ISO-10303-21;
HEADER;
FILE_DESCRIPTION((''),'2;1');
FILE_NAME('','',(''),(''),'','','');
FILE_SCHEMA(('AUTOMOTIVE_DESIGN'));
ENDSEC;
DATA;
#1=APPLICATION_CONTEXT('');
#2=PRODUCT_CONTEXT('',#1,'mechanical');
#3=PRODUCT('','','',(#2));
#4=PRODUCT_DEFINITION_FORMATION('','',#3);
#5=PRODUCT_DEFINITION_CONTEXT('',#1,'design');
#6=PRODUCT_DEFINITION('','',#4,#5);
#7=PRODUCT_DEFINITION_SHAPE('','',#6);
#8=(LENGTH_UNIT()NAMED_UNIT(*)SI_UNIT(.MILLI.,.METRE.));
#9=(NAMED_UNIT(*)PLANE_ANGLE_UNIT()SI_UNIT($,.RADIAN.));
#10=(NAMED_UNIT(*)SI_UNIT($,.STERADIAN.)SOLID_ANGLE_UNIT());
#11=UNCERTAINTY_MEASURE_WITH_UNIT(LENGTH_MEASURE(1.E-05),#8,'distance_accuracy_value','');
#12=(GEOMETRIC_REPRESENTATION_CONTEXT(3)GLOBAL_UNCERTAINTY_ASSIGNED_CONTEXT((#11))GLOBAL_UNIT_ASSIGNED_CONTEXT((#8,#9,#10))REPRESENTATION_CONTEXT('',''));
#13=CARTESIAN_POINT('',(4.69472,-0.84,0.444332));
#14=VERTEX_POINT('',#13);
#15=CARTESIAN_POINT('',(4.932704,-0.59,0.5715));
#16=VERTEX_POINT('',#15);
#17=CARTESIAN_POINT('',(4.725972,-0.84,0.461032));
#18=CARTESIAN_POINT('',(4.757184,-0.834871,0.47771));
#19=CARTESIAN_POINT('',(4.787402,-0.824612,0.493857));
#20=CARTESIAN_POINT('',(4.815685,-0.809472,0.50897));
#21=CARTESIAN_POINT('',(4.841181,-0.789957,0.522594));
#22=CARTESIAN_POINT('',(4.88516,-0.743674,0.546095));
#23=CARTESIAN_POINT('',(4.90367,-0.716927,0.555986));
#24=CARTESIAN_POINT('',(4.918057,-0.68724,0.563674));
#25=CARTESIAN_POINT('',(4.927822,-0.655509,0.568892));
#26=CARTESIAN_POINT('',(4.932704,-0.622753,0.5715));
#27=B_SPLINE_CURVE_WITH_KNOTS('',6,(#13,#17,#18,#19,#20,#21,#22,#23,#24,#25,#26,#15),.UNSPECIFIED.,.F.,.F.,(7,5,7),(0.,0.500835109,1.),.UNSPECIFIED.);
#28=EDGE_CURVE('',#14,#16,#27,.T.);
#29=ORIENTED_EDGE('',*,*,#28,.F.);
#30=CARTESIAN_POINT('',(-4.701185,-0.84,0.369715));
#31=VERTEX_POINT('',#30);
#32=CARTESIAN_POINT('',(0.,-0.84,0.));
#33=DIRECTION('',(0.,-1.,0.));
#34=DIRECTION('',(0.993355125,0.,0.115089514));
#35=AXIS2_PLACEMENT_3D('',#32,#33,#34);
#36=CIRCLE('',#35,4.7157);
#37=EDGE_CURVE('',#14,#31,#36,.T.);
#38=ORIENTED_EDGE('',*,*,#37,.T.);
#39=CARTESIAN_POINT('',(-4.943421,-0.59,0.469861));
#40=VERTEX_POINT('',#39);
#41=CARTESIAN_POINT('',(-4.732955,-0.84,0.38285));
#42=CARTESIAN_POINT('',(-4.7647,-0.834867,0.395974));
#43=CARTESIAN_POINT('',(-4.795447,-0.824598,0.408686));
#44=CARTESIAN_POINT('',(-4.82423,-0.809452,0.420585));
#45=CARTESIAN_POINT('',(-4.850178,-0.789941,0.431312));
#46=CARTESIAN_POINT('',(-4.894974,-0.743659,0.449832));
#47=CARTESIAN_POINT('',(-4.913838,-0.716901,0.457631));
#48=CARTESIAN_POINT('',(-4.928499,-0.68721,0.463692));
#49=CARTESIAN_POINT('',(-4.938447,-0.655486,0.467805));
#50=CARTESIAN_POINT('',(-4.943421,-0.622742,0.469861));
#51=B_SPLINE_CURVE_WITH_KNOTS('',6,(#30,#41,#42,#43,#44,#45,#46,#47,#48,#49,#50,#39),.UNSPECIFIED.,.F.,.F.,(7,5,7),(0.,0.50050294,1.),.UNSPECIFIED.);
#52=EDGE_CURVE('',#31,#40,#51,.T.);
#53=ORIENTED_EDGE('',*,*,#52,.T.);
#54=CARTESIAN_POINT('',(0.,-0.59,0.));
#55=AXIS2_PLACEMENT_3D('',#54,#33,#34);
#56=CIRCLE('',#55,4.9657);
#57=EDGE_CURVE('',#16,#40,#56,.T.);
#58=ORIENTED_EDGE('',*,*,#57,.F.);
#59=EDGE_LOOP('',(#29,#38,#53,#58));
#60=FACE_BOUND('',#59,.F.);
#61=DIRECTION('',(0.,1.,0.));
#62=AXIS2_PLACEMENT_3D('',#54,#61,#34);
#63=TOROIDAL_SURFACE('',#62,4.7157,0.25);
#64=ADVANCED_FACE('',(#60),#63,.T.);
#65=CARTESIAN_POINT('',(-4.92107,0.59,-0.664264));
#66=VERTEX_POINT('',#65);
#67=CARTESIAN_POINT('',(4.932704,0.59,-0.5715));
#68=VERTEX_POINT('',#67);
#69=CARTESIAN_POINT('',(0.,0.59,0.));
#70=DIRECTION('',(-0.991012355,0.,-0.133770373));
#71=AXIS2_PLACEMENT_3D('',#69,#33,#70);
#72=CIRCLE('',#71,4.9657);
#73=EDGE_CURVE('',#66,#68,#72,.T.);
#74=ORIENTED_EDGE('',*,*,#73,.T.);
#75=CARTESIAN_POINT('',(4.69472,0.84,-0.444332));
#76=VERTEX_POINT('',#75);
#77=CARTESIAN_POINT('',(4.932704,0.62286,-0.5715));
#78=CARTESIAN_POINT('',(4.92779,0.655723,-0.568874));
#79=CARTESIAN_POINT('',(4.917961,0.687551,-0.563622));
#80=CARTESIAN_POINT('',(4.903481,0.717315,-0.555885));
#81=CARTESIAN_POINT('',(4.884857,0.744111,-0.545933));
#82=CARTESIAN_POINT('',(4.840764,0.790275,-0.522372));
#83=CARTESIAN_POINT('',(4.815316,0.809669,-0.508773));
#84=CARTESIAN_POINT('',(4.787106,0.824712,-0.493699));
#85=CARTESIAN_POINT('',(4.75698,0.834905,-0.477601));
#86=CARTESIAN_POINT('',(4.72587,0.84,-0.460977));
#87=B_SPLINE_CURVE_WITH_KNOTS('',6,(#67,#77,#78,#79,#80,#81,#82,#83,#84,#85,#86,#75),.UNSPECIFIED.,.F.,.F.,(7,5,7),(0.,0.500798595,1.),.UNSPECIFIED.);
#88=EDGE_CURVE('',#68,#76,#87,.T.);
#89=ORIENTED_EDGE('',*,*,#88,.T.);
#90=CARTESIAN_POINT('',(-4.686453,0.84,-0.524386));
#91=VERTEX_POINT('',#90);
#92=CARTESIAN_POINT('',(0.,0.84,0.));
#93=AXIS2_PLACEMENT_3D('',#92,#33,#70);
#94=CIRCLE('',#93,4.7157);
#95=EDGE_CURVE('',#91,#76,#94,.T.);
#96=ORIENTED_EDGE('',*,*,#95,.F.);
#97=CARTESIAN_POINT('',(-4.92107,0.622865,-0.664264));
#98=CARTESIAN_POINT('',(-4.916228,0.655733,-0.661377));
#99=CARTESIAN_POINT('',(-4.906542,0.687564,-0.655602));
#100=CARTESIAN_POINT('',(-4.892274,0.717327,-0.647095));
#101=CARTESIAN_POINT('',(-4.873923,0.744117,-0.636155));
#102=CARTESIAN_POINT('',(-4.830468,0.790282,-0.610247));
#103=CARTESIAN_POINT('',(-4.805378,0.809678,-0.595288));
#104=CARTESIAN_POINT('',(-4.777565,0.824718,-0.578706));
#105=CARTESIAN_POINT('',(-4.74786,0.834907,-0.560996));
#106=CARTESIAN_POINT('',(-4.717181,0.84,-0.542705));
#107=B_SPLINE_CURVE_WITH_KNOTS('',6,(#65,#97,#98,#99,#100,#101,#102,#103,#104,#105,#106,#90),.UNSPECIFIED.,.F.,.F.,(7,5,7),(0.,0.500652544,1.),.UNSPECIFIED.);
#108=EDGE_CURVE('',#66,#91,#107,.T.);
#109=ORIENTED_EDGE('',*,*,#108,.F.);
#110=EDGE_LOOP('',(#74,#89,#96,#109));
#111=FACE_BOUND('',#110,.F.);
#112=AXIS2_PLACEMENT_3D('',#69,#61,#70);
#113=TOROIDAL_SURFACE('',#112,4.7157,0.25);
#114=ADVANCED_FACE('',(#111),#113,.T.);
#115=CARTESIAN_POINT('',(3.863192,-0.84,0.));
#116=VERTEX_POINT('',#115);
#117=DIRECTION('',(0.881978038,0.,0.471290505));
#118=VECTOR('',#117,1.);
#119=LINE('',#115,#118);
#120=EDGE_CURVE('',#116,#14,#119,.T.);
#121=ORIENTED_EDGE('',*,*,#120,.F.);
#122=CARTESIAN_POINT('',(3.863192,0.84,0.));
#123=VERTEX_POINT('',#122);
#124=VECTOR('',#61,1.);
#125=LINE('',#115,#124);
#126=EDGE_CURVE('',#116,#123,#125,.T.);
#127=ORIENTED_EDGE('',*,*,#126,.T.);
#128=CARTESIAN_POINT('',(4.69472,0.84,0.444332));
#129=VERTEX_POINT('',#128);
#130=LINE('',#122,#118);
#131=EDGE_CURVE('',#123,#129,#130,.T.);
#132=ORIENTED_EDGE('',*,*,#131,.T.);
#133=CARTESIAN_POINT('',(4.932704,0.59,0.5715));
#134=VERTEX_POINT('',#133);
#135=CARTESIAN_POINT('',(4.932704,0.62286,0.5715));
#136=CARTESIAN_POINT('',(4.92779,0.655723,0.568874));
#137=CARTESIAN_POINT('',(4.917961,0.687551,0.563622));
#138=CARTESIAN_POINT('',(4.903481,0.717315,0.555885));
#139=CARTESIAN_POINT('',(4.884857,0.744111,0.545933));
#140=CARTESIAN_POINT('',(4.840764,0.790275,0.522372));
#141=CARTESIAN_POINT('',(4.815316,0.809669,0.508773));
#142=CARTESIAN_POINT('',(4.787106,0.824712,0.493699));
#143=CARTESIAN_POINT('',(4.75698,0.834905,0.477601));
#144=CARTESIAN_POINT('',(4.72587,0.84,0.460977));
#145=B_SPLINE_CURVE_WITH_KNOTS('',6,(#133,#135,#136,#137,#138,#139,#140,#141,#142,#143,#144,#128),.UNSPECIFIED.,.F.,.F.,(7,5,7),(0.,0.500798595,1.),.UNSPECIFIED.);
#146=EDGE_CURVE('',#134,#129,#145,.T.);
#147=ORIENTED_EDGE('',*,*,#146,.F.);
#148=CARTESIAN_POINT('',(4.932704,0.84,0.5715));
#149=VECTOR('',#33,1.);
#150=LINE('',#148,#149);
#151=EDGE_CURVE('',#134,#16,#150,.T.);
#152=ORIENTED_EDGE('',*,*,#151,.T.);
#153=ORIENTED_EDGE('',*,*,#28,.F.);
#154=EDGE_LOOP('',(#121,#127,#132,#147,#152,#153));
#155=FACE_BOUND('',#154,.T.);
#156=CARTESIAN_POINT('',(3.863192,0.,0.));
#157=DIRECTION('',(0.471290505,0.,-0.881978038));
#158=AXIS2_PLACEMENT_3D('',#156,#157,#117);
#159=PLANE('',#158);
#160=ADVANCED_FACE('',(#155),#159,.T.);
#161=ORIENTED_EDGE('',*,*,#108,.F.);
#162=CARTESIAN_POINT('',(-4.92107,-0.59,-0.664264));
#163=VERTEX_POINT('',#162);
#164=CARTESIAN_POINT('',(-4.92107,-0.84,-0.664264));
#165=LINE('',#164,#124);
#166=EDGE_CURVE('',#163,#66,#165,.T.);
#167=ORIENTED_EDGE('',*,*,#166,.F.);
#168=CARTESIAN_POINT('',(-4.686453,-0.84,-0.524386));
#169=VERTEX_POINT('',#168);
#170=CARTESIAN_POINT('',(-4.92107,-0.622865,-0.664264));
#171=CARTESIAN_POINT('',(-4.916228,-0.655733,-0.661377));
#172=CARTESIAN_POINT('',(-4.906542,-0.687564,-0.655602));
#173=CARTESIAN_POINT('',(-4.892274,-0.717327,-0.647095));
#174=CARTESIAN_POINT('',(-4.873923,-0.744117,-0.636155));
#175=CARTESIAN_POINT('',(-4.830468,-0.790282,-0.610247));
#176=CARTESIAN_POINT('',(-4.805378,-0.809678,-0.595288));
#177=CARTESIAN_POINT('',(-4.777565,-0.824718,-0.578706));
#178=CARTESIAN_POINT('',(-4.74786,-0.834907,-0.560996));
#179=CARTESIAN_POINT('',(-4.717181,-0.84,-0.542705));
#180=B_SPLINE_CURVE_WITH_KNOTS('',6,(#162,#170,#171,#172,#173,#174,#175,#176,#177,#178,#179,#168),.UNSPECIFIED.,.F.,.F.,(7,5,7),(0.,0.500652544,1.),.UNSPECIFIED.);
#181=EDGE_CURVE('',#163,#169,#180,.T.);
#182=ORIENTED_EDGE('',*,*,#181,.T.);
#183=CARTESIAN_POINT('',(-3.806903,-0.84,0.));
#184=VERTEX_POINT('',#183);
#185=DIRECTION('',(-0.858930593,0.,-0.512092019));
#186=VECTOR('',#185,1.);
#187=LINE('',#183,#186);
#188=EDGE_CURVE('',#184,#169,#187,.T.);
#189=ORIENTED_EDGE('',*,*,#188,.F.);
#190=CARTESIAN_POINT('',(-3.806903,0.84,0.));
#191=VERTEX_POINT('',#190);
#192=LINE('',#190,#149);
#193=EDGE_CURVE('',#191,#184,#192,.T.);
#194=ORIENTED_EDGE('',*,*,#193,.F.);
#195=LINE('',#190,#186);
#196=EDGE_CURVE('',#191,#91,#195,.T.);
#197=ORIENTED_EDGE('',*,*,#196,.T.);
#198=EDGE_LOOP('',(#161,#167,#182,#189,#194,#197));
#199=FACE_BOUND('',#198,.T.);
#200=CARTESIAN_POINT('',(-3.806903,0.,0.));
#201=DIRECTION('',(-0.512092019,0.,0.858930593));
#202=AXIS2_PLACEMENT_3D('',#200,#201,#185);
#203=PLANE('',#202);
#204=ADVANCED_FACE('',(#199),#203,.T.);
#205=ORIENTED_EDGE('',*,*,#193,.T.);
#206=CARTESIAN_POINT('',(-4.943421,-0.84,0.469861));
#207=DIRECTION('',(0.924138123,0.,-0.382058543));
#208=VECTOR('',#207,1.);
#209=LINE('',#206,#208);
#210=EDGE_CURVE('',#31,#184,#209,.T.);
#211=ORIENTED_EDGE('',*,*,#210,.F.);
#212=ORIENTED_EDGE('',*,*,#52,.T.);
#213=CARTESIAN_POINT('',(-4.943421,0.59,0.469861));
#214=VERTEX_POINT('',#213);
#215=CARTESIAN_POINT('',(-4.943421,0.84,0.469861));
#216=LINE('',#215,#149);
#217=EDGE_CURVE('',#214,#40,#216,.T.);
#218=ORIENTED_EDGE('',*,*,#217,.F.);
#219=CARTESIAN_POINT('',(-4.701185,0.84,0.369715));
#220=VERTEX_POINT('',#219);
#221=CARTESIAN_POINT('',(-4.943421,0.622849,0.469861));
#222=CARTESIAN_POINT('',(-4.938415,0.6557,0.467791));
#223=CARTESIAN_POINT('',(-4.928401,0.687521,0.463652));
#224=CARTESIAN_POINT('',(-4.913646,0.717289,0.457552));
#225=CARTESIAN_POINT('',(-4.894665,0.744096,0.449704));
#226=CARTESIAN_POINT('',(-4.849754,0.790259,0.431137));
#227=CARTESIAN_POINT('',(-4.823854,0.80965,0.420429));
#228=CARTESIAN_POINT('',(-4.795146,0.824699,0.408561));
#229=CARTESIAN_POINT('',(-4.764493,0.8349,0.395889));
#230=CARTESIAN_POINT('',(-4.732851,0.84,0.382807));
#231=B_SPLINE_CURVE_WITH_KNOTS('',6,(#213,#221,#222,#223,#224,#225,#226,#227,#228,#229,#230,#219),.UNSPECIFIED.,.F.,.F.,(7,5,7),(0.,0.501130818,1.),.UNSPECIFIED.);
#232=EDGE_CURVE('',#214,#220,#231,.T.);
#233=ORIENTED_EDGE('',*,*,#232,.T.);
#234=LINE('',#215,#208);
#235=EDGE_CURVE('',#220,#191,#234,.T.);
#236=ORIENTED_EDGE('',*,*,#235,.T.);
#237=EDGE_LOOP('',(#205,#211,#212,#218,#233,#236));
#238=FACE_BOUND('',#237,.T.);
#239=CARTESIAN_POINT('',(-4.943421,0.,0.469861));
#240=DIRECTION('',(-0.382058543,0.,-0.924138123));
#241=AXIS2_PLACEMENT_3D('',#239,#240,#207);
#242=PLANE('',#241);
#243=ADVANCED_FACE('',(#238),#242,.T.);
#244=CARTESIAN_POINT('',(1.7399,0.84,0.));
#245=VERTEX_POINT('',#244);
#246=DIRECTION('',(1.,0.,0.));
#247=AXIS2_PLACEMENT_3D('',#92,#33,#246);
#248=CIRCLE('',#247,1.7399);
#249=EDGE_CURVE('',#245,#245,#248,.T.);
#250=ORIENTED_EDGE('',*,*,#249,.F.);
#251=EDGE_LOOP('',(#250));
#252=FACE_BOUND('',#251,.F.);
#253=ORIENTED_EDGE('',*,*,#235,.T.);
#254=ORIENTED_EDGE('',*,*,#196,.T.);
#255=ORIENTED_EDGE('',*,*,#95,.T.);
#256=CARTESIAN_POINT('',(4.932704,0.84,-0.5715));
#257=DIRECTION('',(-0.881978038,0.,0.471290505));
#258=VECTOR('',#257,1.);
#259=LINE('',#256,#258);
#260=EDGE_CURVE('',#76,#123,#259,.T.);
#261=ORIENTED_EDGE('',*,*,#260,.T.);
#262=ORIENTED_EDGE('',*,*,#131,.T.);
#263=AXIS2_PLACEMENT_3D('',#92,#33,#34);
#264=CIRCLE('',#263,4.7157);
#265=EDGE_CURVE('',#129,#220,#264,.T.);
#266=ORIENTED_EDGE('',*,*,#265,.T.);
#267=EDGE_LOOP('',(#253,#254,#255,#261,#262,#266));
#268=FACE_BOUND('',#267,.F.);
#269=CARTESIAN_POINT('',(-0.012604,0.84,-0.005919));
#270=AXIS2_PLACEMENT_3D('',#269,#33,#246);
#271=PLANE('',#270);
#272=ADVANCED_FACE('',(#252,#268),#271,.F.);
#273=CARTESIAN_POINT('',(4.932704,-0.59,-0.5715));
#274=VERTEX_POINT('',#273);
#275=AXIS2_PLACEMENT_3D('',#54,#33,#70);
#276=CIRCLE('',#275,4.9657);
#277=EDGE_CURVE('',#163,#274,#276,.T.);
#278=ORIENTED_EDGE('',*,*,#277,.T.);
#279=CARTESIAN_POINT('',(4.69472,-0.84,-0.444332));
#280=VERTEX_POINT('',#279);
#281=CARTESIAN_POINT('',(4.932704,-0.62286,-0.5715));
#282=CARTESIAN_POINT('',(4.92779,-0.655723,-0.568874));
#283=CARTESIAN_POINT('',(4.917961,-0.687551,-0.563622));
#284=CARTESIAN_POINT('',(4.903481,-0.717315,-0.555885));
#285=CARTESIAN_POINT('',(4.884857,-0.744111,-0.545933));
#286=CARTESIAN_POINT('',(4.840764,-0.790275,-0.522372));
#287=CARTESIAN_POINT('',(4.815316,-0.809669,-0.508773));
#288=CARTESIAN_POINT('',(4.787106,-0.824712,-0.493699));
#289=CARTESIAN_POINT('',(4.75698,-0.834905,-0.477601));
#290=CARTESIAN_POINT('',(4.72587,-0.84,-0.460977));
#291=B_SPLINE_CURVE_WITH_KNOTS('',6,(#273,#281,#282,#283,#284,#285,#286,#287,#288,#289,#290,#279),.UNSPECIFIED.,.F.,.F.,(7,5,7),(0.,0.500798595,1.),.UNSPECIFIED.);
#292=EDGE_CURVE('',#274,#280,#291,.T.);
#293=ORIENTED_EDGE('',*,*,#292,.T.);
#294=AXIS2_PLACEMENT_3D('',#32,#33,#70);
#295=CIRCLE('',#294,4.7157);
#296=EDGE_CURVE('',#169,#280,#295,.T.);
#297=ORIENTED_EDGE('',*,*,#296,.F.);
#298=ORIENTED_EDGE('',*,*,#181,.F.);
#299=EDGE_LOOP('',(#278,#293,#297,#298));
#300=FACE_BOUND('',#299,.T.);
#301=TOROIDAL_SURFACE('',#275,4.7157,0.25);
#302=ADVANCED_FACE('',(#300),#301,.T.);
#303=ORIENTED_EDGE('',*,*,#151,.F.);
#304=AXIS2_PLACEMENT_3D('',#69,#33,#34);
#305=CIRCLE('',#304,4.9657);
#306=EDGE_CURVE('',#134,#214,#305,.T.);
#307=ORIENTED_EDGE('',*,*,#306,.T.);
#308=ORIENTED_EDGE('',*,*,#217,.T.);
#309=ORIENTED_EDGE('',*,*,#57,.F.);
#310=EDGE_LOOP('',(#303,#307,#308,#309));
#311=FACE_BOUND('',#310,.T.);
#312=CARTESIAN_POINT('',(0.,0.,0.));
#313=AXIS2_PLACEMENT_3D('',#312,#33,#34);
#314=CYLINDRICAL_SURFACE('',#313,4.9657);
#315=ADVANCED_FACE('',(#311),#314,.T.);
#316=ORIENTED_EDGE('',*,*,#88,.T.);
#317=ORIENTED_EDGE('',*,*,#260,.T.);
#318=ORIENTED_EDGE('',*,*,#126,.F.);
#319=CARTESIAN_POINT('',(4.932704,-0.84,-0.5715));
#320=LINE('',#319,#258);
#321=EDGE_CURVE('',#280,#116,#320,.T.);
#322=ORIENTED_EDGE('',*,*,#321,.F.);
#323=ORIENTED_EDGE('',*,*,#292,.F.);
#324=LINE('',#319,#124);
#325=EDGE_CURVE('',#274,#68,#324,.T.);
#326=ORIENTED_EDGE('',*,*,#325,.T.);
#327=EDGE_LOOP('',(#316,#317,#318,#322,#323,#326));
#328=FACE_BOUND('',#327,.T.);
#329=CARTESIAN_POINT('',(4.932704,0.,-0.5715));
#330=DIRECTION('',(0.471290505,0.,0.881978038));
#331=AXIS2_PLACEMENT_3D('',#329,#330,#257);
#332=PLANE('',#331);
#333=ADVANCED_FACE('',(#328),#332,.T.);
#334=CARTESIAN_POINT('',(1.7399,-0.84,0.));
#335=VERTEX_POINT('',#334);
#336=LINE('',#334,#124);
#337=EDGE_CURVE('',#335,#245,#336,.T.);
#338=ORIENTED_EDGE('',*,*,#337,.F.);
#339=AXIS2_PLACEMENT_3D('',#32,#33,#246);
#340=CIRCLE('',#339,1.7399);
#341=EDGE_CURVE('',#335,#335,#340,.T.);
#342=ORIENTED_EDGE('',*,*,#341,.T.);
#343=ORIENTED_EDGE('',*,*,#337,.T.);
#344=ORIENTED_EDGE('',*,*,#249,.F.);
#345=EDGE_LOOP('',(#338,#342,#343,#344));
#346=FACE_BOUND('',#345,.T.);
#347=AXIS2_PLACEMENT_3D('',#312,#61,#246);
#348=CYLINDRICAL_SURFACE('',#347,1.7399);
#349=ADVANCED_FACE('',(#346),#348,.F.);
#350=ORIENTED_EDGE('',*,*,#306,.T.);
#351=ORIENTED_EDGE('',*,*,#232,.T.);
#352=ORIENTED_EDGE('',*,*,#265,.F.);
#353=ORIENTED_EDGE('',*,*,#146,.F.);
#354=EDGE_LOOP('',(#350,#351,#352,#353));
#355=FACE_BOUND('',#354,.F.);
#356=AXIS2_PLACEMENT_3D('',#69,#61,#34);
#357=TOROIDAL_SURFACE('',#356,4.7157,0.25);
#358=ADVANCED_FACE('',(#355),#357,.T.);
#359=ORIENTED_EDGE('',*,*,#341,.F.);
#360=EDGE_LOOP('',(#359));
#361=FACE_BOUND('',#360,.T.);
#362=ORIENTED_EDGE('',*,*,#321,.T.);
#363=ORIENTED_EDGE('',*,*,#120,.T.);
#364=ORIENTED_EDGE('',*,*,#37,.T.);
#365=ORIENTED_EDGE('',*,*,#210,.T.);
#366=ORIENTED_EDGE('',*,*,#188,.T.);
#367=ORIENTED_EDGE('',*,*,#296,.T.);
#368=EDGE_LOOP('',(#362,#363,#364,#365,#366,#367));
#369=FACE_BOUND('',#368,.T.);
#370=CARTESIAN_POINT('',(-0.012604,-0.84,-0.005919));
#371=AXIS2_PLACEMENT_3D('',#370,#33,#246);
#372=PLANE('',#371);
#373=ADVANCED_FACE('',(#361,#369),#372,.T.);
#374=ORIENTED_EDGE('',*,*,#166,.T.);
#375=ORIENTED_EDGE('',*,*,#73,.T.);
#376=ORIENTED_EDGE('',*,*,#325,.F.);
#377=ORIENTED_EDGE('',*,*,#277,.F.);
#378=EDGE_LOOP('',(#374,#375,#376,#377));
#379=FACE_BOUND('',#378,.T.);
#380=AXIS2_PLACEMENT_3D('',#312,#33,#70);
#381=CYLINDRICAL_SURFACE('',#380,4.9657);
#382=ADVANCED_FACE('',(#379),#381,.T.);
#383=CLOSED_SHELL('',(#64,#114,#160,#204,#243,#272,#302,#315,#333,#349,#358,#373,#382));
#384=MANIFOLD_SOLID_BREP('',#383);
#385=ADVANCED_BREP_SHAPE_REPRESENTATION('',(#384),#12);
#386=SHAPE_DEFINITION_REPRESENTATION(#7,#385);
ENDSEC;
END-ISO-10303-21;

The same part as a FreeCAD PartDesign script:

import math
import FreeCAD as App
import Part
import Sketcher
Q = App.Units.Quantity


def edges_at(feature, points):
    """Names of the edges that pass closest to the given points."""
    edges = feature.Shape.Edges
    near = lambda p: min(range(len(edges)), key=lambda i: edges[i].distToShape(Part.Vertex(*p))[0])
    return sorted({f"Edge{near(p) + 1}" for p in points})

doc = App.newDocument("Part")
params = doc.addObject("Spreadsheet::Sheet", "Params")
for row, (alias, value) in enumerate([
    ("sketch1_diameter", "0.137 in"),
    ("pad1_length", "1.68 mm"),
    ("fillet_radius", "0.25 mm"),
], start=1):
    params.set(f"A{row}", alias)
    params.set(f"B{row}", "=" + value)
    params.setAlias(f"B{row}", alias)

body = doc.addObject("PartDesign::Body", "Body")

# Sketch on XZ plane
sketch1 = doc.addObject("Sketcher::SketchObject", "Sketch")
body.addObject(sketch1)
sketch1.AttachmentSupport = (doc.XZ_Plane, [""])
sketch1.MapMode = "FlatFace"
sketch1.addGeometry(Part.LineSegment(App.Vector(3.9, 0, 0), App.Vector(4.9, 0.6, 0)), False)
sketch1.addGeometry(Part.ArcOfCircle(Part.Circle(App.Vector(0, 0, 0), App.Vector(0, 0, 1), 5), math.radians(7), math.radians(175)), False)
sketch1.addGeometry(Part.LineSegment(App.Vector(-4.9, 0.5, 0), App.Vector(-3.8, 0, 0)), False)
sketch1.addGeometry(Part.LineSegment(App.Vector(-3.8, 0, 0), App.Vector(-4.9, -0.7, 0)), False)
sketch1.addGeometry(Part.ArcOfCircle(Part.Circle(App.Vector(0, 0, 0), App.Vector(0, 0, 1), 5), math.radians(-172), math.radians(-7)), False)
sketch1.addGeometry(Part.LineSegment(App.Vector(4.9, -0.6, 0), App.Vector(3.9, 0, 0)), False)
sketch1.addGeometry(Part.Circle(App.Vector(0, 0, 0), App.Vector(0, 0, 1), 1.7), False)
sketch1.addConstraint(Sketcher.Constraint("Coincident", 0, 2, 1, 1))
sketch1.addConstraint(Sketcher.Constraint("Coincident", 1, 2, 2, 1))
sketch1.addConstraint(Sketcher.Constraint("Coincident", 2, 2, 3, 1))
sketch1.addConstraint(Sketcher.Constraint("Coincident", 3, 2, 4, 1))
sketch1.addConstraint(Sketcher.Constraint("Coincident", 4, 2, 5, 1))
sketch1.addConstraint(Sketcher.Constraint("Coincident", 5, 2, 0, 1))
sketch1.addConstraint(Sketcher.Constraint("Coincident", 1, 3, -1, 1))
sketch1.addConstraint(Sketcher.Constraint("Coincident", 4, 3, -1, 1))
sketch1.addConstraint(Sketcher.Constraint("Coincident", 6, 3, -1, 1))
sketch1.addConstraint(Sketcher.Constraint("Equal", 1, 4))
sketch1.addConstraint(Sketcher.Constraint("PointOnObject", 2, 2, -1))
sketch1.addConstraint(Sketcher.Constraint("PointOnObject", 5, 2, -1))
sketch1.addConstraint(Sketcher.Constraint("Vertical", 0, 2, 4, 2))
sketch1.addConstraint(Sketcher.Constraint("Diameter", 6, Q("0.137 in")))
sketch1.addConstraint(Sketcher.Constraint("Radius", 1, Q("0.1955 in")))
sketch1.addConstraint(Sketcher.Constraint("DistanceY", 4, 2, 0, 2, Q("0.045 in")))
sketch1.addConstraint(Sketcher.Constraint("DistanceX", 1, 2, -1, 1, 4.943421))
sketch1.addConstraint(Sketcher.Constraint("DistanceX", 3, 2, -1, 1, 4.92107))
sketch1.addConstraint(Sketcher.Constraint("DistanceX", 1, 2, 2, 2, 1.136518))
sketch1.addConstraint(Sketcher.Constraint("DistanceX", 5, 2, 4, 2, 1.069511))
sketch1.setExpression("Constraints[13]", "Params.sketch1_diameter")
pad1 = doc.addObject("PartDesign::Pad", "Pad")
body.addObject(pad1)
pad1.Profile = sketch1
pad1.setExpression("Length", "Params.pad1_length")
pad1.Midplane = True
doc.recompute()

fillet = doc.addObject("PartDesign::Fillet", "Fillet")
body.addObject(fillet)
fillet.Base = (pad1, edges_at(pad1, [
    (0.047, -0.84, -4.965),
    (-0.051, -0.84, 4.965),
    (0.047, 0.84, -4.965),
    (-0.051, 0.84, 4.965),
]))
fillet.setExpression("Radius", "Params.fillet_radius")

doc.recompute()
